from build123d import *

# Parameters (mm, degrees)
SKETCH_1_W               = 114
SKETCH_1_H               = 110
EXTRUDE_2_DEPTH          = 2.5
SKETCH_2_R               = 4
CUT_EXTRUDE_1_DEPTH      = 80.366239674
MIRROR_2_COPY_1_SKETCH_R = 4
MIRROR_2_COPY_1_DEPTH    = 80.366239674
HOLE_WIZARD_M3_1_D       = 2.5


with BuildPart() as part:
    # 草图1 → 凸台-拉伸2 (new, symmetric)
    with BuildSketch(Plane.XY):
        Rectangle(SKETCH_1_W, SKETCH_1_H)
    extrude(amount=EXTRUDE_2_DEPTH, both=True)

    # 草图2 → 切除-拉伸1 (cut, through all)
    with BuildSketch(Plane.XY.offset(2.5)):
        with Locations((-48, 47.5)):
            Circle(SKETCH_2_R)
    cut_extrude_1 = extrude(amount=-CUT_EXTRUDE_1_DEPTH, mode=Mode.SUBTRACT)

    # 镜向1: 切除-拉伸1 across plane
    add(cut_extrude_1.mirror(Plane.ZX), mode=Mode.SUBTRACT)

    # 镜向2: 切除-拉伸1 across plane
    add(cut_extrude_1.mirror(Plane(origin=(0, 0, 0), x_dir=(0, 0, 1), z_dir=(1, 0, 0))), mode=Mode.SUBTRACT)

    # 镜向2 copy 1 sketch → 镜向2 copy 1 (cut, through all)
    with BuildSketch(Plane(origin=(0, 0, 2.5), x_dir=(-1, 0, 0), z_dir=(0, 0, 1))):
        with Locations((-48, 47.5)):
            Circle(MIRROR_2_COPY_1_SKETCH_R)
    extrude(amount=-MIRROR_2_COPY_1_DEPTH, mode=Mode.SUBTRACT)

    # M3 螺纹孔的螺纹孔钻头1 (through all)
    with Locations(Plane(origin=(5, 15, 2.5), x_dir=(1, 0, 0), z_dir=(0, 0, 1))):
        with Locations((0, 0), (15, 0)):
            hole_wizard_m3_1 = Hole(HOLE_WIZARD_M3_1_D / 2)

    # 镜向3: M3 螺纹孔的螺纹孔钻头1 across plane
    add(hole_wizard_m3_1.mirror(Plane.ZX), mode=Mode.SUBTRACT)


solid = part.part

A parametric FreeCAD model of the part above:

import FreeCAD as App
import Part
import Sketcher
from FreeCAD import Vector
Q = App.Units.Quantity


def add_polygon(sketch, points):
    """Adds a closed chain of lines whose ends are joined by coincident constraints."""
    first, n = sketch.GeometryCount, len(points)
    for a, b in zip(points, points[1:] + points[:1]):
        sketch.addGeometry(Part.LineSegment(App.Vector(*a, 0), App.Vector(*b, 0)), False)
    for i in range(n):
        sketch.addConstraint(Sketcher.Constraint("Coincident", first + i, 2, first + (i + 1) % n, 1))

doc = App.newDocument("Part")
body = doc.addObject("PartDesign::Body", "Body")

# Sketch on XY plane
sketch1 = body.newObject("Sketcher::SketchObject", "Sketch")
sketch1.AttachmentSupport = (doc.getObject("XY_Plane"), [""])
sketch1.MapMode = "FlatFace"
add_polygon(sketch1, [(-57, 55), (-57, -55), (57, -55), (57, 55)])  # lines 0-3
sketch1.addConstraint(Sketcher.Constraint("Vertical", 0))
sketch1.addConstraint(Sketcher.Constraint("Horizontal", 1))
sketch1.addConstraint(Sketcher.Constraint("Vertical", 2))
sketch1.addConstraint(Sketcher.Constraint("Horizontal", 3))
sketch1.addConstraint(Sketcher.Constraint("Symmetric", 0, 2, 2, 2, -1, 1))
sketch1.addConstraint(Sketcher.Constraint("DistanceX", 1, 1, 1, 2, Q("114 mm")))
sketch1.addConstraint(Sketcher.Constraint("DistanceY", 0, 2, 0, 1, Q("110 mm")))
pad1 = body.newObject("PartDesign::Pad", "Pad")
pad1.Profile = sketch1
pad1.Length = 5
pad1.Midplane = True

# Sketch on XY plane
sketch2 = body.newObject("Sketcher::SketchObject", "Sketch001")
sketch2.AttachmentSupport = (doc.getObject("XY_Plane"), [""])
sketch2.MapMode = "FlatFace"
sketch2.AttachmentOffset = App.Placement(Vector(0, 0, 2.5), App.Rotation())
sketch2.addGeometry(Part.Circle(Vector(-48, 47.5, 0), Vector(0, 0, 1), 4), False)
sketch2.addConstraint(Sketcher.Constraint("Diameter", 0, Q("8 mm")))
sketch2.addConstraint(Sketcher.Constraint("DistanceX", 0, 3, -1, 1, Q("48 mm")))
sketch2.addConstraint(Sketcher.Constraint("DistanceY", -1, 1, 0, 3, Q("47.5 mm")))
pocket1 = body.newObject("PartDesign::Pocket", "Pocket")
pocket1.Profile = sketch2
pocket1.Type = "ThroughAll"
doc.recompute()

mirrored = body.newObject("PartDesign::Mirrored", "Mirrored")
mirrored.Originals = [pocket1]
mirrored.MirrorPlane = (doc.getObject("XZ_Plane"), [""])
body.Tip = mirrored
doc.recompute()

mirrored2 = body.newObject("PartDesign::Mirrored", "Mirrored001")
mirrored2.Originals = [pocket1]
mirrored2.MirrorPlane = (doc.getObject("YZ_Plane"), [""])
body.Tip = mirrored2

# Sketch on XY plane
sketch3 = body.newObject("Sketcher::SketchObject", "Sketch002")
sketch3.AttachmentSupport = (doc.getObject("XY_Plane"), [""])
sketch3.MapMode = "FlatFace"
sketch3.AttachmentOffset = App.Placement(Vector(0, 0, 2.5), App.Rotation())
sketch3.addGeometry(Part.Circle(Vector(48, -47.5, 0), Vector(0, 0, 1), 4), False)
sketch3.addConstraint(Sketcher.Constraint("Diameter", 0, Q("8 mm")))
sketch3.addConstraint(Sketcher.Constraint("DistanceX", -1, 1, 0, 3, Q("48 mm")))
sketch3.addConstraint(Sketcher.Constraint("DistanceY", 0, 3, -1, 1, Q("47.5 mm")))
pocket2 = body.newObject("PartDesign::Pocket", "Pocket001")
pocket2.Profile = sketch3
pocket2.Type = "ThroughAll"

# Sketch on XY plane
sketch4 = body.newObject("Sketcher::SketchObject", "Sketch003")
sketch4.AttachmentSupport = (doc.getObject("XY_Plane"), [""])
sketch4.MapMode = "FlatFace"
sketch4.AttachmentOffset = App.Placement(Vector(0, 0, 2.5), App.Rotation())
sketch4.addGeometry(Part.Circle(Vector(5, 15, 0), Vector(0, 0, 1), 1.2), False)
sketch4.addGeometry(Part.Circle(Vector(20, 15, 0), Vector(0, 0, 1), 1.2), False)
sketch4.addConstraint(Sketcher.Constraint("Equal", 0, 1))
sketch4.addConstraint(Sketcher.Constraint("Horizontal", 0, 3, 1, 3))
sketch4.addConstraint(Sketcher.Constraint("Diameter", 0, Q("2.5 mm")))
sketch4.addConstraint(Sketcher.Constraint("DistanceX", -1, 1, 0, 3, Q("5 mm")))
sketch4.addConstraint(Sketcher.Constraint("DistanceY", -1, 1, 0, 3, Q("15 mm")))
sketch4.addConstraint(Sketcher.Constraint("DistanceX", -1, 1, 1, 3, Q("20 mm")))
doc.recompute()
hole = body.newObject("PartDesign::Hole", "Hole")
hole.Profile = sketch4
hole.ThreadType = "None"
hole.Diameter = 2.5
hole.DepthType = "ThroughAll"
doc.recompute()

mirrored3 = body.newObject("PartDesign::Mirrored", "Mirrored002")
mirrored3.Originals = [hole]
mirrored3.MirrorPlane = (doc.getObject("XZ_Plane"), [""])
body.Tip = mirrored3

doc.recompute()
